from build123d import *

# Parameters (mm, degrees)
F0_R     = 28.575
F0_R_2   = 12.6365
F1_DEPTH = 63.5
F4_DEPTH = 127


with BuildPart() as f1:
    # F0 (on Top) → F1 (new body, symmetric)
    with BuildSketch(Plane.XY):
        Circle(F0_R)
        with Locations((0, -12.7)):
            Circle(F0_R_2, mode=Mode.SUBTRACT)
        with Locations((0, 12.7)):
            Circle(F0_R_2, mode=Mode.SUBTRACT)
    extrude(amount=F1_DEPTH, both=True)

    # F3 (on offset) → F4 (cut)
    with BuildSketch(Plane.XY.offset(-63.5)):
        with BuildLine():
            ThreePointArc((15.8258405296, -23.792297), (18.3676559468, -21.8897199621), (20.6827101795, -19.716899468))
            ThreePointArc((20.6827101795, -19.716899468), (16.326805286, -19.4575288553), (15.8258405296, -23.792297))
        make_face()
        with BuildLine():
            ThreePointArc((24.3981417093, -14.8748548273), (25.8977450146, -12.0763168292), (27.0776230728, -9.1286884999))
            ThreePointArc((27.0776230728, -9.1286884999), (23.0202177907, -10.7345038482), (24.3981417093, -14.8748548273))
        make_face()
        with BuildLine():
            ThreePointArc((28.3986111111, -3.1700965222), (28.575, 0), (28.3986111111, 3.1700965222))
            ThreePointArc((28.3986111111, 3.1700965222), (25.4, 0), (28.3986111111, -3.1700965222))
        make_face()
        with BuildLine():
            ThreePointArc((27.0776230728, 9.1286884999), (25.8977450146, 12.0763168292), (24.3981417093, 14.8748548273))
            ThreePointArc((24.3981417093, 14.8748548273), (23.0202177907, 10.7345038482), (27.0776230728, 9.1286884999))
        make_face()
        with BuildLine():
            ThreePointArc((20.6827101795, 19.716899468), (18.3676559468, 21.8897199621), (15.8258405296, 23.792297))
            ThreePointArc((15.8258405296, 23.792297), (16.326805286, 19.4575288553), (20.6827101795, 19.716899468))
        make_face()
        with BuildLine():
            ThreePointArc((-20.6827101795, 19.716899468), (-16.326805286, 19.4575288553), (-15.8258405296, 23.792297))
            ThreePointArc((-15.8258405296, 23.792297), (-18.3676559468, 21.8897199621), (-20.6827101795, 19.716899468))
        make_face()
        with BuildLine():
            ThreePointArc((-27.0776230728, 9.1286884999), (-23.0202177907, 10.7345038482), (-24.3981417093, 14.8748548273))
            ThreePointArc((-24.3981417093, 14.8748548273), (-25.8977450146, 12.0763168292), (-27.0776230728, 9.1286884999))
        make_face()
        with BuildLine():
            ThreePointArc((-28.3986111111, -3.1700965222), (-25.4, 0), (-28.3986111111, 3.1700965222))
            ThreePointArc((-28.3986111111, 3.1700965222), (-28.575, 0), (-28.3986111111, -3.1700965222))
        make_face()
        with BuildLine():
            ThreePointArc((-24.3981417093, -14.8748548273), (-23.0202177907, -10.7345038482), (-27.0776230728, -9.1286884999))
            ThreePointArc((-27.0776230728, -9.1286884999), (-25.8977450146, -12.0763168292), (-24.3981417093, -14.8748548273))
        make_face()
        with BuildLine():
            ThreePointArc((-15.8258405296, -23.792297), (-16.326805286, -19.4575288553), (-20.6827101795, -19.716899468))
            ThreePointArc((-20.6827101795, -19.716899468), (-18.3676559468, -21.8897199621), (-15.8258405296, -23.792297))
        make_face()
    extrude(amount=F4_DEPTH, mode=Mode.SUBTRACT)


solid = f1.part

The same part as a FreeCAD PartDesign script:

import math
import FreeCAD as App
import Part
import Sketcher
from FreeCAD import Vector
Q = App.Units.Quantity

doc = App.newDocument("Part")
body = doc.addObject("PartDesign::Body", "Body")

# Sketch on XY plane
sketch1 = doc.addObject("Sketcher::SketchObject", "Sketch")
body.addObject(sketch1)
sketch1.AttachmentSupport = (doc.XY_Plane, [""])
sketch1.MapMode = "FlatFace"
sketch1.addGeometry([
    Part.Circle(Vector(0, 0, 0), Vector(0, 0, 1), 29),
    Part.Circle(Vector(0, -13, 0), Vector(0, 0, 1), 13),
    Part.Circle(Vector(0, 13, 0), Vector(0, 0, 1), 13),
], False)
sketch1.addConstraint([
    Sketcher.Constraint("Coincident", 0, 3, -1, 1),
    Sketcher.Constraint("Equal", 1, 2),
    Sketcher.Constraint("Symmetric", 1, 3, 2, 3, -1, 1),
    Sketcher.Constraint("PointOnObject", 1, 3, -2),
    Sketcher.Constraint("Diameter", 0, Q("2.25 in")),
    Sketcher.Constraint("Diameter", 1, Q("0.995 in")),
    Sketcher.Constraint("DistanceY", 1, 3, 2, 3, Q("1 in")),
])
pad1 = doc.addObject("PartDesign::Pad", "Pad")
body.addObject(pad1)
pad1.Profile = sketch1
pad1.Length = Q("5 in")
pad1.Midplane = True

# Sketch on XY plane
sketch2 = doc.addObject("Sketcher::SketchObject", "Sketch001")
body.addObject(sketch2)
sketch2.AttachmentSupport = (doc.XY_Plane, [""])
sketch2.MapMode = "FlatFace"
sketch2.AttachmentOffset = App.Placement(Vector(0, 0, -2.5 * 25.4), App.Rotation())
sketch2.addGeometry([
    Part.ArcOfCircle(Part.Circle(Vector(0, 0, 0), Vector(0, 0, 1), 28.6), math.radians(-56.37), math.radians(-43.63)),  # 0
    Part.ArcOfCircle(Part.Circle(Vector(18.4, -21.9, 0), Vector(0, 0, 1), 3.2), math.radians(43), math.radians(217)),  # 1
    Part.ArcOfCircle(Part.Circle(Vector(0, 0, 0), Vector(0, 0, 1), 28.6), math.radians(-31.37), math.radians(-18.63)),  # 2
    Part.ArcOfCircle(Part.Circle(Vector(25.9, -12.1, 0), Vector(0, 0, 1), 3.2), math.radians(68), math.radians(242)),  # 3
    Part.ArcOfCircle(Part.Circle(Vector(0, 0, 0), Vector(0, 0, 1), 28.6), math.radians(-6.37), math.radians(6.37)),  # 4
    Part.ArcOfCircle(Part.Circle(Vector(28.6, 0, 0), Vector(0, 0, 1), 3.2), math.radians(93), math.radians(267)),  # 5
    Part.ArcOfCircle(Part.Circle(Vector(0, 0, 0), Vector(0, 0, 1), 28.6), math.radians(18.63), math.radians(31.37)),  # 6
    Part.ArcOfCircle(Part.Circle(Vector(25.9, 12.1, 0), Vector(0, 0, 1), 3.2), math.radians(118), math.radians(292)),  # 7
    Part.ArcOfCircle(Part.Circle(Vector(0, 0, 0), Vector(0, 0, 1), 28.6), math.radians(43.63), math.radians(56.37)),  # 8
    Part.ArcOfCircle(Part.Circle(Vector(18.4, 21.9, 0), Vector(0, 0, 1), 3.2), math.radians(143), math.radians(317)),  # 9
    Part.ArcOfCircle(Part.Circle(Vector(-18.4, 21.9, 0), Vector(0, 0, 1), 3.2), math.radians(-137), math.radians(37)),  # 10
    Part.ArcOfCircle(Part.Circle(Vector(0, 0, 0), Vector(0, 0, 1), 28.6), math.radians(123.63), math.radians(136.37)),  # 11
    Part.ArcOfCircle(Part.Circle(Vector(-25.9, 12.1, 0), Vector(0, 0, 1), 3.2), math.radians(-112), math.radians(62)),  # 12
    Part.ArcOfCircle(Part.Circle(Vector(0, 0, 0), Vector(0, 0, 1), 28.6), math.radians(148.63), math.radians(161.37)),  # 13
    Part.ArcOfCircle(Part.Circle(Vector(-28.6, 0, 0), Vector(0, 0, 1), 3.2), math.radians(-87), math.radians(87)),  # 14
    Part.ArcOfCircle(Part.Circle(Vector(0, 0, 0), Vector(0, 0, 1), 28.6), math.radians(173.63), math.radians(186.37)),  # 15
    Part.ArcOfCircle(Part.Circle(Vector(-25.9, -12.1, 0), Vector(0, 0, 1), 3.2), math.radians(-62), math.radians(112)),  # 16
    Part.ArcOfCircle(Part.Circle(Vector(0, 0, 0), Vector(0, 0, 1), 28.6), math.radians(-161.37), math.radians(-148.63)),  # 17
    Part.ArcOfCircle(Part.Circle(Vector(-18.4, -21.9, 0), Vector(0, 0, 1), 3.2), math.radians(-37), math.radians(137)),  # 18
    Part.ArcOfCircle(Part.Circle(Vector(0, 0, 0), Vector(0, 0, 1), 28.6), math.radians(-136.37), math.radians(-123.63)),  # 19
], False)
sketch2.addConstraint([
    Sketcher.Constraint("Coincident", 0, 1, 1, 2),
    Sketcher.Constraint("Coincident", 1, 1, 0, 2),
    Sketcher.Constraint("Coincident", 2, 1, 3, 2),
    Sketcher.Constraint("Coincident", 3, 1, 2, 2),
    Sketcher.Constraint("Coincident", 4, 1, 5, 2),
    Sketcher.Constraint("Coincident", 5, 1, 4, 2),
    Sketcher.Constraint("Coincident", 6, 1, 7, 2),
    Sketcher.Constraint("Coincident", 7, 1, 6, 2),
    Sketcher.Constraint("Coincident", 8, 1, 9, 2),
    Sketcher.Constraint("Coincident", 9, 1, 8, 2),
    Sketcher.Constraint("Coincident", 10, 1, 11, 2),
    Sketcher.Constraint("Coincident", 11, 1, 10, 2),
    Sketcher.Constraint("Coincident", 12, 1, 13, 2),
    Sketcher.Constraint("Coincident", 13, 1, 12, 2),
    Sketcher.Constraint("Coincident", 14, 1, 15, 2),
    Sketcher.Constraint("Coincident", 15, 1, 14, 2),
    Sketcher.Constraint("Coincident", 16, 1, 17, 2),
    Sketcher.Constraint("Coincident", 17, 1, 16, 2),
    Sketcher.Constraint("Coincident", 18, 1, 19, 2),
    Sketcher.Constraint("Coincident", 19, 1, 18, 2),
    Sketcher.Constraint("Coincident", 0, 3, -1, 1),
    Sketcher.Constraint("Coincident", 2, 3, -1, 1),
    Sketcher.Constraint("Coincident", 4, 3, -1, 1),
    Sketcher.Constraint("Coincident", 6, 3, -1, 1),
    Sketcher.Constraint("Coincident", 8, 3, -1, 1),
    Sketcher.Constraint("Coincident", 11, 3, -1, 1),
    Sketcher.Constraint("Coincident", 13, 3, -1, 1),
    Sketcher.Constraint("Coincident", 15, 3, -1, 1),
    Sketcher.Constraint("Coincident", 17, 3, -1, 1),
    Sketcher.Constraint("Coincident", 19, 3, -1, 1),
    Sketcher.Constraint("Equal", 0, 2),
    Sketcher.Constraint("Equal", 1, 3),
    Sketcher.Constraint("Equal", 2, 4),
    Sketcher.Constraint("Equal", 3, 5),
    Sketcher.Constraint("Equal", 4, 6),
    Sketcher.Constraint("Equal", 5, 7),
    Sketcher.Constraint("Equal", 6, 8),
    Sketcher.Constraint("Equal", 7, 9),
    Sketcher.Constraint("Equal", 9, 10),
    Sketcher.Constraint("Equal", 8, 11),
    Sketcher.Constraint("Equal", 10, 12),
    Sketcher.Constraint("Equal", 11, 13),
    Sketcher.Constraint("Equal", 12, 14),
    Sketcher.Constraint("Equal", 13, 15),
    Sketcher.Constraint("Equal", 14, 16),
    Sketcher.Constraint("Equal", 15, 17),
    Sketcher.Constraint("Equal", 16, 18),
    Sketcher.Constraint("Equal", 17, 19),
    Sketcher.Constraint("Symmetric", 1, 3, 10, 3, -1, 1),
    Sketcher.Constraint("Symmetric", 3, 3, 12, 3, -1, 1),
    Sketcher.Constraint("Symmetric", 5, 3, 14, 3, -1, 1),
    Sketcher.Constraint("Symmetric", 7, 3, 16, 3, -1, 1),
    Sketcher.Constraint("Symmetric", 9, 3, 18, 3, -1, 1),
    Sketcher.Constraint("Symmetric", 9, 3, 10, 3, -2),
    Sketcher.Constraint("Symmetric", 7, 3, 12, 3, -2),
    Sketcher.Constraint("PointOnObject", 5, 3, -1),
    Sketcher.Constraint("Radius", 0, Q("1.125 in")),
    Sketcher.Constraint("Radius", 1, Q("0.125 in")),
    Sketcher.Constraint("DistanceX", -1, 1, 5, 3, Q("1.125 in")),
    Sketcher.Constraint("DistanceY", 1, 3, -1, 1, Q("0.8618 in")),
    Sketcher.Constraint("DistanceY", 1, 1, -1, 1, 19.716899),
    Sketcher.Constraint("DistanceX", 0, 1, 2, 1, 8.572301),
    Sketcher.Constraint("DistanceY", 3, 1, -1, 1, 9.128688),
])
pocket1 = doc.addObject("PartDesign::Pocket", "Pocket")
body.addObject(pocket1)
pocket1.Profile = sketch2
pocket1.Length = Q("5 in")
pocket1.Reversed = True

doc.recompute()
